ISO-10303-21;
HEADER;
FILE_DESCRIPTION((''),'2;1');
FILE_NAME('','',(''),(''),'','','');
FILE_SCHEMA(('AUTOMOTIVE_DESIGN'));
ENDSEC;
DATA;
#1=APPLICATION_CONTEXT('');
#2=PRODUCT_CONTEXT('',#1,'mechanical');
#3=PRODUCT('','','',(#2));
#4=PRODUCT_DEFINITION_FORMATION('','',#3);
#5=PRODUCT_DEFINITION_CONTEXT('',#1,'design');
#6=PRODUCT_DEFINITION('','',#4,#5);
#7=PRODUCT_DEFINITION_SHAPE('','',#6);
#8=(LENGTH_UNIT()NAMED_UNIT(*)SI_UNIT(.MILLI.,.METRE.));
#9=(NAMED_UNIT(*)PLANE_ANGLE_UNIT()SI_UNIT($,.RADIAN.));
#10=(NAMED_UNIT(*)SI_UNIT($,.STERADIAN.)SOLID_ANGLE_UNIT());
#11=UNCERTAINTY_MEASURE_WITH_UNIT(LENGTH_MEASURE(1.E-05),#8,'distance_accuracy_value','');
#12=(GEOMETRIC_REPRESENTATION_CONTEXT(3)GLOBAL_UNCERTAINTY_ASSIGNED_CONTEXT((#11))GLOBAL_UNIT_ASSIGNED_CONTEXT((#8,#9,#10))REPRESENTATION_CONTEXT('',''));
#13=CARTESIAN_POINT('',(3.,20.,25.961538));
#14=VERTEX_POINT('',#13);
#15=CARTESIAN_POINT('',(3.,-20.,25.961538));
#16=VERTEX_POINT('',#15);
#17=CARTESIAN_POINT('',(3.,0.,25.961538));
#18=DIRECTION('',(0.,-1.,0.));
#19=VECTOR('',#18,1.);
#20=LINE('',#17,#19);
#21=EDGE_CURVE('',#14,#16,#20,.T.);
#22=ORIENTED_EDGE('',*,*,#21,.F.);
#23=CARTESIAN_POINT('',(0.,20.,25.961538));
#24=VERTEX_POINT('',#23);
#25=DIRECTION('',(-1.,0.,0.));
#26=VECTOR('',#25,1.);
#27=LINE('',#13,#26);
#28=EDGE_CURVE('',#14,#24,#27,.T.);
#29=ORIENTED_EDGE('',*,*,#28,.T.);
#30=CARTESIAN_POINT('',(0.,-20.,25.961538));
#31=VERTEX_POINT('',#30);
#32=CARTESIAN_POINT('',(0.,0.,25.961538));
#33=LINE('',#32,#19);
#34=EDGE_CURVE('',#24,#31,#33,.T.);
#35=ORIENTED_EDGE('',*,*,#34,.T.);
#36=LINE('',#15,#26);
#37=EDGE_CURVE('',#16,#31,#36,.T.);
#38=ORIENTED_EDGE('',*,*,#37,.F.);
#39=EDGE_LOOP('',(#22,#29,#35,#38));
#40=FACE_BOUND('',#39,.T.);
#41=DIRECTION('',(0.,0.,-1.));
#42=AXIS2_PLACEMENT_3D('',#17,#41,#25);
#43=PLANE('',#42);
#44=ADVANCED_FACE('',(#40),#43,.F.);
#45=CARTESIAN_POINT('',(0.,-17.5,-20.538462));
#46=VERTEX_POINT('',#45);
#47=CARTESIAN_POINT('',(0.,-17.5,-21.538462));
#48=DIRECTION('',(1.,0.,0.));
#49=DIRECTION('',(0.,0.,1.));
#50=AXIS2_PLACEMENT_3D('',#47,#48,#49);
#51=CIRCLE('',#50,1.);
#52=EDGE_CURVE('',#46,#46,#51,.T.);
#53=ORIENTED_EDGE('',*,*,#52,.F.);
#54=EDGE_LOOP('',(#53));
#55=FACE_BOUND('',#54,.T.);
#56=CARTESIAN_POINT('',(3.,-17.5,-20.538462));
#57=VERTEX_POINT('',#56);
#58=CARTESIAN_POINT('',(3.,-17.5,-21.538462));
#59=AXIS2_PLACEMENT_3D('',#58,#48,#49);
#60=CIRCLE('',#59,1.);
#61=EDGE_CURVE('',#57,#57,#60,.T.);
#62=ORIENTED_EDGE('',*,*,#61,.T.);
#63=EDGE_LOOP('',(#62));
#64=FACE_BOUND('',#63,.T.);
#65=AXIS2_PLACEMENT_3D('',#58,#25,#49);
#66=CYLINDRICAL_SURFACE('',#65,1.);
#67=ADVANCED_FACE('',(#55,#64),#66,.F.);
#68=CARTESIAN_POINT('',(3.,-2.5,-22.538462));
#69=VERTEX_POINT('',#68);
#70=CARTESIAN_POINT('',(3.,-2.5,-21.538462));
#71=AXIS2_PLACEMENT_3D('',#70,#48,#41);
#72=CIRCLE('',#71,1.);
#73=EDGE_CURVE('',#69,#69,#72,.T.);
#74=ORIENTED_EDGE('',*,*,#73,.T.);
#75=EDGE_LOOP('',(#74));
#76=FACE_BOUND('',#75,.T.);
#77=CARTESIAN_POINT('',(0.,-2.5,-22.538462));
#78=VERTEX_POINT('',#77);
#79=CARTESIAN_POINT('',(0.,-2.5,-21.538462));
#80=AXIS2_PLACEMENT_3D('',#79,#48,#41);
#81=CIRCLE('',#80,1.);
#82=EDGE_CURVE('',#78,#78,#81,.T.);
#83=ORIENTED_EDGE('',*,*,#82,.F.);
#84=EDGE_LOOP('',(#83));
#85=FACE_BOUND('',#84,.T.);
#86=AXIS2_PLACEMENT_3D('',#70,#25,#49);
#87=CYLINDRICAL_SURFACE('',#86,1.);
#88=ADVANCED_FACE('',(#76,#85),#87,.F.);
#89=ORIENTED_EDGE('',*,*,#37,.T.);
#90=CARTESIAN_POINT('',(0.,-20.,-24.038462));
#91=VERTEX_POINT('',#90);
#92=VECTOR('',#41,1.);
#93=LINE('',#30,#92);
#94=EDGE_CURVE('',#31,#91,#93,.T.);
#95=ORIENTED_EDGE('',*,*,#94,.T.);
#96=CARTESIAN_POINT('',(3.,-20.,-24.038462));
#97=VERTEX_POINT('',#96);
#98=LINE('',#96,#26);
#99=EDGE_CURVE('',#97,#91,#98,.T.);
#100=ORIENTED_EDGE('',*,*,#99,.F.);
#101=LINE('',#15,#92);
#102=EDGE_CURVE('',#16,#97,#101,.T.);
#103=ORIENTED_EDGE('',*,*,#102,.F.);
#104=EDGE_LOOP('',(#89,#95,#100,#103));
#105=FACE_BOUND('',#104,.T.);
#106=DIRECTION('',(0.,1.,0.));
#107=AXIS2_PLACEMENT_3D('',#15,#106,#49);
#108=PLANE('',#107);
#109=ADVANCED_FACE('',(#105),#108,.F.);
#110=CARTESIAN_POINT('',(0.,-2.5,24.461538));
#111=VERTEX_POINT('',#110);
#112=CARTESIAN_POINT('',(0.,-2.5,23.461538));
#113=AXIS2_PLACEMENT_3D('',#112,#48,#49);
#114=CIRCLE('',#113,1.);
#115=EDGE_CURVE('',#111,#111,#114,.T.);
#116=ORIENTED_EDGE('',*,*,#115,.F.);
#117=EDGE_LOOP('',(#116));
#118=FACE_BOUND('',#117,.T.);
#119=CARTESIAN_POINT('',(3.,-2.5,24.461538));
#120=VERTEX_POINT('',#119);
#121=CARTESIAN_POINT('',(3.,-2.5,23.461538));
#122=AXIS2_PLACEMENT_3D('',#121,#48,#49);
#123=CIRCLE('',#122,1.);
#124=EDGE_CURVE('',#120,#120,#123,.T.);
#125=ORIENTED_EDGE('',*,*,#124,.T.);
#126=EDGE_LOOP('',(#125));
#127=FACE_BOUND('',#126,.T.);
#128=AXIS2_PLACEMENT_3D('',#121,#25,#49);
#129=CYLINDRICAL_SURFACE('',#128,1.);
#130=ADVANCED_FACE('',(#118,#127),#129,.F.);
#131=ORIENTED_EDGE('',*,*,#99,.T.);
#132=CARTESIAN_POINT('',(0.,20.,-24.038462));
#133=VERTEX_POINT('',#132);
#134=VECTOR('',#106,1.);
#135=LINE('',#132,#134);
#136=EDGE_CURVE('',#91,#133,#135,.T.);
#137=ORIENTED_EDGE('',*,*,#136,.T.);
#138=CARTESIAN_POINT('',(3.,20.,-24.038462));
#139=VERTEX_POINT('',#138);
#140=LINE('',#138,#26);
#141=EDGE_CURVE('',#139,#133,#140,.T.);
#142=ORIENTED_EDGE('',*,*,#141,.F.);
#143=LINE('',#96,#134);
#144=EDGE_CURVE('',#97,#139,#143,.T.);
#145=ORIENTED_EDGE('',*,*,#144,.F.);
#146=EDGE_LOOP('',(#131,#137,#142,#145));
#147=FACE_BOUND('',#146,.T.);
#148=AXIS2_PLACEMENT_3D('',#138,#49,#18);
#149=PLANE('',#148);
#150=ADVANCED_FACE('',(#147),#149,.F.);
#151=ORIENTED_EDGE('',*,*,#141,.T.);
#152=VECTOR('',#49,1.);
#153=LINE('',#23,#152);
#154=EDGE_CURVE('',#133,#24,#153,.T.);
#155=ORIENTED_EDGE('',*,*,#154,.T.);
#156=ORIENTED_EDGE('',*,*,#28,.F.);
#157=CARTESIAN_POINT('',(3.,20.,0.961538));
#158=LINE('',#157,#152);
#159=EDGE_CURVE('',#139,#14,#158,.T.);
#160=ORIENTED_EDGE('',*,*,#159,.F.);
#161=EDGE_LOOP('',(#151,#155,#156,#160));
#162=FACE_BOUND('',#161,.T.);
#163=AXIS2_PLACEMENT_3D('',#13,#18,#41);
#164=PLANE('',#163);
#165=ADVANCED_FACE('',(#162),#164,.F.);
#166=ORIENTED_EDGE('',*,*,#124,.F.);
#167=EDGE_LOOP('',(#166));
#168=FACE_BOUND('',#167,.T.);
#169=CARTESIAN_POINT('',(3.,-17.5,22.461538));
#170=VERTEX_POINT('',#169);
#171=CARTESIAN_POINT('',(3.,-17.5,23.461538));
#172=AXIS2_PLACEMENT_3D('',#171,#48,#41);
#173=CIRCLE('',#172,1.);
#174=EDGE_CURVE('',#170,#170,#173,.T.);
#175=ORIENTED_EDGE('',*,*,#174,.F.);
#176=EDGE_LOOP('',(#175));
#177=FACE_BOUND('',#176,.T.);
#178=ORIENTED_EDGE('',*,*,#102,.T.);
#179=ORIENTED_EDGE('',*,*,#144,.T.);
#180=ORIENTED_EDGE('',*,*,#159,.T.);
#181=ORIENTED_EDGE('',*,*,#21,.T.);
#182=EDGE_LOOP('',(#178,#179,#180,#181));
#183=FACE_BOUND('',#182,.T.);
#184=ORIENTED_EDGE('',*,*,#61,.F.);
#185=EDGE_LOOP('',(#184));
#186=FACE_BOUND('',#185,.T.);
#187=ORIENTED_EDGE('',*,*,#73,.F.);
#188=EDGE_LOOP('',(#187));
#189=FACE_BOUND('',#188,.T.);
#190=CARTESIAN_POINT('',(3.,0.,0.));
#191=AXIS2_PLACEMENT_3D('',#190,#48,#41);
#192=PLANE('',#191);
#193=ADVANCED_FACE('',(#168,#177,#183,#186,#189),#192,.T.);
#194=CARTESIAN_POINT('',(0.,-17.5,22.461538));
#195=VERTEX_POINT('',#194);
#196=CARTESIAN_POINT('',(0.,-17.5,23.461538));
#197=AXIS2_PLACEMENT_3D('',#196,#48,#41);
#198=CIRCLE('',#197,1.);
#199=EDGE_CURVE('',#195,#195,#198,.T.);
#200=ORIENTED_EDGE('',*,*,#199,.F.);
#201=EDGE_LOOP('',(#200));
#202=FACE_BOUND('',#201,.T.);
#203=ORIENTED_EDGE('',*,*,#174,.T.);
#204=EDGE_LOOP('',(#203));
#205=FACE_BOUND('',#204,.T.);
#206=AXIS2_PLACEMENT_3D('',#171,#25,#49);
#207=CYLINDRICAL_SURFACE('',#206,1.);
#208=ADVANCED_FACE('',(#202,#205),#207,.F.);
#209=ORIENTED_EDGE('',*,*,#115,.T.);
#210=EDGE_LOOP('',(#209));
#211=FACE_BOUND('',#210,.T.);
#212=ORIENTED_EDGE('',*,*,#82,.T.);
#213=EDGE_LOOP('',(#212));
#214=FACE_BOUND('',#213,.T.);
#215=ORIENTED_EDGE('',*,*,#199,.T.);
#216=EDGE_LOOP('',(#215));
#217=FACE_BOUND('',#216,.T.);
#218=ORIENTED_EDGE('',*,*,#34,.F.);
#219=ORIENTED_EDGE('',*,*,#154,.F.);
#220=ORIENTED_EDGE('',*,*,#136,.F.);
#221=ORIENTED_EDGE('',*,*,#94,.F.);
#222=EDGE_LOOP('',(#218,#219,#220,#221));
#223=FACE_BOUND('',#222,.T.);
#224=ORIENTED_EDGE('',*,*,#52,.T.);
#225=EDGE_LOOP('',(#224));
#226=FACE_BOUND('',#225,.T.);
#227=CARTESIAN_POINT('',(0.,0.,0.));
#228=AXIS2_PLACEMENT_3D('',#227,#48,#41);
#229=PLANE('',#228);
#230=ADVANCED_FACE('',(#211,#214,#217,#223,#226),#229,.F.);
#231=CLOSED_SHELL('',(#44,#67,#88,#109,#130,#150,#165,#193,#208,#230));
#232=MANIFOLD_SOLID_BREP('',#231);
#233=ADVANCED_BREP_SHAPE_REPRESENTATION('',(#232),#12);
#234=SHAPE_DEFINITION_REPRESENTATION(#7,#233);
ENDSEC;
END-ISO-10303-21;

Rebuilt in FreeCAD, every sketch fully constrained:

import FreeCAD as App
import Part
import Sketcher

V = App.Vector
Q = App.Units.Quantity

doc = App.newDocument("Part")
body = doc.addObject("PartDesign::Body", "Body")

# Sketch on YZ plane
sketch1 = body.newObject("Sketcher::SketchObject", "Sketch")
sketch1.AttachmentSupport = (doc.getObject("YZ_Plane"), [""])
sketch1.MapMode = "FlatFace"
sketch1.addGeometry([
    Part.LineSegment(V(20, 26, 0), V(-20, 26, 0)),  # 0
    Part.LineSegment(V(-20, 26, 0), V(-20, -24, 0)),  # 1
    Part.LineSegment(V(-20, -24, 0), V(20, -24, 0)),  # 2
    Part.LineSegment(V(20, -24, 0), V(20, 26, 0)),  # 3
    Part.Circle(V(-17.5, -21.5, 0), V(0, 0, 1), 1),  # 4
    Part.Circle(V(-17.5, 23.5, 0), V(0, 0, 1), 1),  # 5
    Part.Circle(V(-2.5, -21.5, 0), V(0, 0, 1), 1),  # 6
    Part.Circle(V(-2.5, 23.5, 0), V(0, 0, 1), 1),  # 7
], False)
sketch1.addConstraint([
    Sketcher.Constraint("Coincident", 0, 2, 1, 1),
    Sketcher.Constraint("Coincident", 1, 2, 2, 1),
    Sketcher.Constraint("Coincident", 2, 2, 3, 1),
    Sketcher.Constraint("Coincident", 3, 2, 0, 1),
    Sketcher.Constraint("Horizontal", 0),
    Sketcher.Constraint("Vertical", 1),
    Sketcher.Constraint("Horizontal", 2),
    Sketcher.Constraint("Vertical", 3),
    Sketcher.Constraint("Equal", 4, 5),
    Sketcher.Constraint("Equal", 5, 6),
    Sketcher.Constraint("Equal", 6, 7),
    Sketcher.Constraint("Horizontal", 4, 3, 6, 3),
    Sketcher.Constraint("Horizontal", 5, 3, 7, 3),
    Sketcher.Constraint("Vertical", 4, 3, 5, 3),
    Sketcher.Constraint("Vertical", 6, 3, 7, 3),
    Sketcher.Constraint("Diameter", 4, Q("2 mm")),
    Sketcher.Constraint("DistanceX", 0, 2, 0, 1, Q("40 mm")),
    Sketcher.Constraint("DistanceY", 1, 2, 1, 1, Q("50 mm")),
    Sketcher.Constraint("DistanceX", 0, 2, -1, 1, Q("20 mm")),
    Sketcher.Constraint("DistanceY", 4, 3, 5, 3, Q("45 mm")),
    Sketcher.Constraint("DistanceX", 4, 3, 6, 3, Q("15 mm")),
    Sketcher.Constraint("DistanceX", 4, 3, -1, 1, Q("17.5 mm")),
    Sketcher.Constraint("DistanceY", 5, 3, 0, 2, Q("2.5 mm")),
    Sketcher.Constraint("DistanceY", 4, 3, -1, 1, Q("21.538462 mm")),
])
pad1 = body.newObject("PartDesign::Pad", "Pad")
pad1.Profile = sketch1
pad1.Length = 3

doc.recompute()
